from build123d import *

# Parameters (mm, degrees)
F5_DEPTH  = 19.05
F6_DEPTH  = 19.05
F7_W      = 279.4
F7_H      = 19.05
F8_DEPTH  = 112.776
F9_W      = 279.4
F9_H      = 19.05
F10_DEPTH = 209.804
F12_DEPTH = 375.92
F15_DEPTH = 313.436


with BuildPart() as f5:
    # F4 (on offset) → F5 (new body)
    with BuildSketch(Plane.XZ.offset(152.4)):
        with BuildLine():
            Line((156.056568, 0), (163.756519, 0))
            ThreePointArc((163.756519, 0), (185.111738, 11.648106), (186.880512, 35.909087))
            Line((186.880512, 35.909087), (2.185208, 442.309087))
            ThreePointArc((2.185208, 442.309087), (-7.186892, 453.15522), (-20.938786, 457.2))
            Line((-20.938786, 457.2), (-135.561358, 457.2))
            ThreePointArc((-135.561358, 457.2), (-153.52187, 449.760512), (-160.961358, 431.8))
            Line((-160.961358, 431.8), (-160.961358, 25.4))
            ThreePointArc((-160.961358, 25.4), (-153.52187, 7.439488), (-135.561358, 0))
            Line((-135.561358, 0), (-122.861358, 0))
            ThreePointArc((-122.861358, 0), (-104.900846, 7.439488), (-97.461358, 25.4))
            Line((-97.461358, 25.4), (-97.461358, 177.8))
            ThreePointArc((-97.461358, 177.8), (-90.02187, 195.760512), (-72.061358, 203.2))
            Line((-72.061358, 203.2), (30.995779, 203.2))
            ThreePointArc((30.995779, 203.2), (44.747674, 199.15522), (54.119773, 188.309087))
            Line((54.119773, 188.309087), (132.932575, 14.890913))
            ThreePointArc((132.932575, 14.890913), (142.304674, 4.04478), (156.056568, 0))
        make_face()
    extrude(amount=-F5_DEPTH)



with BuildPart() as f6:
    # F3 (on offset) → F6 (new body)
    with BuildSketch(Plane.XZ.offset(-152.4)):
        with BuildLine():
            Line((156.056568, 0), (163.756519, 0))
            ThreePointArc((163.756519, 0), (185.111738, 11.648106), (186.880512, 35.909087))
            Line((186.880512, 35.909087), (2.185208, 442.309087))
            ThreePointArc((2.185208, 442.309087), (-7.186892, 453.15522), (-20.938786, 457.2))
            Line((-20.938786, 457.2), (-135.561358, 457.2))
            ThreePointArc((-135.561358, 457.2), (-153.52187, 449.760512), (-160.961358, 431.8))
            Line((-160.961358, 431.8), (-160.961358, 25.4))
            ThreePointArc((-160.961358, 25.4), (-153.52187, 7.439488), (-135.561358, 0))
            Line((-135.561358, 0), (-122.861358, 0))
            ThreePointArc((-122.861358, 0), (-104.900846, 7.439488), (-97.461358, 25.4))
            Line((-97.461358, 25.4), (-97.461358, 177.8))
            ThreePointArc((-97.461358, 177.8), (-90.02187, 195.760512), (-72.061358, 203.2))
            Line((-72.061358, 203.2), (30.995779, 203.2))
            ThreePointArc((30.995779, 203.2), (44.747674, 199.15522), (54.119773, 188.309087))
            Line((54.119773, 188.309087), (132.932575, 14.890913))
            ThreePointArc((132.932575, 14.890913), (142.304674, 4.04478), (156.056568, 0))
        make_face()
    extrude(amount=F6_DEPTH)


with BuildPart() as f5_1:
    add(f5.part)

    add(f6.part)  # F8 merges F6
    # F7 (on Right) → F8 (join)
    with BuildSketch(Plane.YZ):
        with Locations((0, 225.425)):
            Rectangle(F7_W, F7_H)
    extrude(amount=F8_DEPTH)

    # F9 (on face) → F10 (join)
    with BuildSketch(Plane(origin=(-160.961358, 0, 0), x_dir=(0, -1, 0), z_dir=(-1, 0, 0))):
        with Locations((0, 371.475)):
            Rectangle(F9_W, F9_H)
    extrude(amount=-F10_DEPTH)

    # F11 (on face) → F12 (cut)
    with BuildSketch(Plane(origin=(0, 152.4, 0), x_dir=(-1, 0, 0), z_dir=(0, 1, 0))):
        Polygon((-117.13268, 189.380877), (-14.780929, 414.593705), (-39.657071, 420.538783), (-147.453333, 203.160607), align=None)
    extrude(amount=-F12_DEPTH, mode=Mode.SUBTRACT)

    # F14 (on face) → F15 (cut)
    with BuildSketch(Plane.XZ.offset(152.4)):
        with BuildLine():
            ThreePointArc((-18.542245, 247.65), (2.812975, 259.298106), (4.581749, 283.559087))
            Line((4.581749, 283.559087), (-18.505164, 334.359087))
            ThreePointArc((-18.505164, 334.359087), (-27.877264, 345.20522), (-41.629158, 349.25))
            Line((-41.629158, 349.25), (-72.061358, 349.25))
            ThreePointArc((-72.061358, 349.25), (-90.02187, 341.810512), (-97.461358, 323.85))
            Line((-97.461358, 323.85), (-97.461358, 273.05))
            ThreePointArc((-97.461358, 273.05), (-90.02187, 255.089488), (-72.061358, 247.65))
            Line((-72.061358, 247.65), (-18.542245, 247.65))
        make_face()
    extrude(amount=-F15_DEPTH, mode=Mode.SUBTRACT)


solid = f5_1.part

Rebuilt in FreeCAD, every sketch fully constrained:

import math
import FreeCAD as App
import Part
import Sketcher
from FreeCAD import Vector
Q = App.Units.Quantity


def add_polygon(sketch, points):
    """Adds a closed chain of lines whose ends are joined by coincident constraints."""
    first, n = sketch.GeometryCount, len(points)
    for a, b in zip(points, points[1:] + points[:1]):
        sketch.addGeometry(Part.LineSegment(App.Vector(*a, 0), App.Vector(*b, 0)), False)
    for i in range(n):
        sketch.addConstraint(Sketcher.Constraint("Coincident", first + i, 2, first + (i + 1) % n, 1))

doc = App.newDocument("Part")
body = doc.addObject("PartDesign::Body", "Body")

# Sketch on XZ plane
sketch1 = body.newObject("Sketcher::SketchObject", "Sketch")
sketch1.AttachmentSupport = (doc.getObject("XZ_Plane"), [""])
sketch1.MapMode = "FlatFace"
sketch1.AttachmentOffset = App.Placement(Vector(0, 0, 6 * 25.4), App.Rotation())
sketch1.addGeometry([
    Part.LineSegment(Vector(156, 0, 0), Vector(164, 0, 0)),  # 0
    Part.ArcOfCircle(Part.Circle(Vector(164, 25, 0), Vector(0, 0, 1), 25), math.radians(-90), math.radians(24)),  # 1
    Part.LineSegment(Vector(187, 36, 0), Vector(2, 442, 0)),  # 2
    Part.ArcOfCircle(Part.Circle(Vector(-21, 432, 0), Vector(0, 0, 1), 25), math.radians(24), math.radians(90)),  # 3
    Part.LineSegment(Vector(-21, 457, 0), Vector(-136, 457, 0)),  # 4
    Part.ArcOfCircle(Part.Circle(Vector(-136, 432, 0), Vector(0, 0, 1), 25), math.radians(90), math.radians(180)),  # 5
    Part.LineSegment(Vector(-161, 432, 0), Vector(-161, 25, 0)),  # 6
    Part.ArcOfCircle(Part.Circle(Vector(-136, 25, 0), Vector(0, 0, 1), 25), math.radians(-180), math.radians(-90)),  # 7
    Part.LineSegment(Vector(-136, 0, 0), Vector(-123, 0, 0)),  # 8
    Part.ArcOfCircle(Part.Circle(Vector(-123, 25, 0), Vector(0, 0, 1), 25), math.radians(-90), math.radians(0)),  # 9
    Part.LineSegment(Vector(-97, 25, 0), Vector(-97, 178, 0)),  # 10
    Part.ArcOfCircle(Part.Circle(Vector(-72, 178, 0), Vector(0, 0, 1), 25), math.radians(90), math.radians(180)),  # 11
    Part.LineSegment(Vector(-72, 203, 0), Vector(31, 203, 0)),  # 12
    Part.ArcOfCircle(Part.Circle(Vector(31, 178, 0), Vector(0, 0, 1), 25), math.radians(24), math.radians(90)),  # 13
    Part.LineSegment(Vector(54, 188, 0), Vector(133, 15, 0)),  # 14
    Part.ArcOfCircle(Part.Circle(Vector(156, 25, 0), Vector(0, 0, 1), 25), math.radians(-156), math.radians(-90)),  # 15
], False)
sketch1.addConstraint([
    Sketcher.Constraint("Tangent", 0, 2, 1, 1),
    Sketcher.Constraint("Tangent", 1, 2, 2, 1),
    Sketcher.Constraint("Tangent", 2, 2, 3, 1),
    Sketcher.Constraint("Tangent", 3, 2, 4, 1),
    Sketcher.Constraint("Tangent", 4, 2, 5, 1),
    Sketcher.Constraint("Tangent", 5, 2, 6, 1),
    Sketcher.Constraint("Tangent", 6, 2, 7, 1),
    Sketcher.Constraint("Tangent", 7, 2, 8, 1),
    Sketcher.Constraint("Tangent", 8, 2, 9, 1),
    Sketcher.Constraint("Tangent", 9, 2, 10, 1),
    Sketcher.Constraint("Tangent", 10, 2, 11, 2),
    Sketcher.Constraint("Tangent", 11, 1, 12, 1),
    Sketcher.Constraint("Tangent", 12, 2, 13, 2),
    Sketcher.Constraint("Tangent", 13, 1, 14, 1),
    Sketcher.Constraint("Tangent", 14, 2, 15, 1),
    Sketcher.Constraint("Tangent", 15, 2, 0, 1),
    Sketcher.Constraint("Horizontal", 0),
    Sketcher.Constraint("Horizontal", 4),
    Sketcher.Constraint("Vertical", 6),
    Sketcher.Constraint("Horizontal", 8),
    Sketcher.Constraint("Vertical", 10),
    Sketcher.Constraint("Horizontal", 12),
    Sketcher.Constraint("Equal", 1, 3),
    Sketcher.Constraint("Equal", 3, 5),
    Sketcher.Constraint("Equal", 5, 7),
    Sketcher.Constraint("Equal", 7, 9),
    Sketcher.Constraint("Equal", 9, 11),
    Sketcher.Constraint("Equal", 13, 15),
    Sketcher.Constraint("PointOnObject", 0, 2, -1),
    Sketcher.Constraint("PointOnObject", 7, 2, -1),
    Sketcher.Constraint("Parallel", 2, 14),
    Sketcher.Constraint("Radius", 1, Q("1 in")),
    Sketcher.Constraint("Radius", 13, Q("0.9999999 in")),
    Sketcher.Constraint("DistanceY", 6, 2, 6, 1, Q("16 in")),
    Sketcher.Constraint("DistanceY", 10, 1, 10, 2, Q("6 in")),
    Sketcher.Constraint("DistanceX", 8, 1, 8, 2, Q("0.5 in")),
    Sketcher.Constraint("DistanceX", 0, 1, 0, 2, Q("7.699951 mm")),
    Sketcher.Constraint("DistanceX", 4, 2, 4, 1, Q("114.622572 mm")),
    Sketcher.Constraint("DistanceX", 12, 1, 12, 2, Q("103.057137 mm")),
    Sketcher.Constraint("DistanceX", -1, 1, 1, 3, Q("163.756518 mm")),
])
pad1 = body.newObject("PartDesign::Pad", "Pad")
pad1.Profile = sketch1
pad1.Length = Q("0.75 in")
pad1.Reversed = True
body2 = doc.addObject("PartDesign::Body", "Body001")

# Sketch on XZ plane
sketch2 = body2.newObject("Sketcher::SketchObject", "Sketch001")
sketch2.AttachmentSupport = (doc.getObject("XZ_Plane001"), [""])
sketch2.MapMode = "FlatFace"
sketch2.AttachmentOffset = App.Placement(Vector(0, 0, -6 * 25.4), App.Rotation())
sketch2.addGeometry([
    Part.LineSegment(Vector(156, 0, 0), Vector(164, 0, 0)),  # 0
    Part.ArcOfCircle(Part.Circle(Vector(164, 25, 0), Vector(0, 0, 1), 25), math.radians(-90), math.radians(24)),  # 1
    Part.LineSegment(Vector(187, 36, 0), Vector(2, 442, 0)),  # 2
    Part.ArcOfCircle(Part.Circle(Vector(-21, 432, 0), Vector(0, 0, 1), 25), math.radians(24), math.radians(90)),  # 3
    Part.LineSegment(Vector(-21, 457, 0), Vector(-136, 457, 0)),  # 4
    Part.ArcOfCircle(Part.Circle(Vector(-136, 432, 0), Vector(0, 0, 1), 25), math.radians(90), math.radians(180)),  # 5
    Part.LineSegment(Vector(-161, 432, 0), Vector(-161, 25, 0)),  # 6
    Part.ArcOfCircle(Part.Circle(Vector(-136, 25, 0), Vector(0, 0, 1), 25), math.radians(-180), math.radians(-90)),  # 7
    Part.LineSegment(Vector(-136, 0, 0), Vector(-123, 0, 0)),  # 8
    Part.ArcOfCircle(Part.Circle(Vector(-123, 25, 0), Vector(0, 0, 1), 25), math.radians(-90), math.radians(0)),  # 9
    Part.LineSegment(Vector(-97, 25, 0), Vector(-97, 178, 0)),  # 10
    Part.ArcOfCircle(Part.Circle(Vector(-72, 178, 0), Vector(0, 0, 1), 25), math.radians(90), math.radians(180)),  # 11
    Part.LineSegment(Vector(-72, 203, 0), Vector(31, 203, 0)),  # 12
    Part.ArcOfCircle(Part.Circle(Vector(31, 178, 0), Vector(0, 0, 1), 25), math.radians(24), math.radians(90)),  # 13
    Part.LineSegment(Vector(54, 188, 0), Vector(133, 15, 0)),  # 14
    Part.ArcOfCircle(Part.Circle(Vector(156, 25, 0), Vector(0, 0, 1), 25), math.radians(-156), math.radians(-90)),  # 15
], False)
sketch2.addConstraint([
    Sketcher.Constraint("Tangent", 0, 2, 1, 1),
    Sketcher.Constraint("Tangent", 1, 2, 2, 1),
    Sketcher.Constraint("Tangent", 2, 2, 3, 1),
    Sketcher.Constraint("Tangent", 3, 2, 4, 1),
    Sketcher.Constraint("Tangent", 4, 2, 5, 1),
    Sketcher.Constraint("Tangent", 5, 2, 6, 1),
    Sketcher.Constraint("Tangent", 6, 2, 7, 1),
    Sketcher.Constraint("Tangent", 7, 2, 8, 1),
    Sketcher.Constraint("Tangent", 8, 2, 9, 1),
    Sketcher.Constraint("Tangent", 9, 2, 10, 1),
    Sketcher.Constraint("Tangent", 10, 2, 11, 2),
    Sketcher.Constraint("Tangent", 11, 1, 12, 1),
    Sketcher.Constraint("Tangent", 12, 2, 13, 2),
    Sketcher.Constraint("Tangent", 13, 1, 14, 1),
    Sketcher.Constraint("Tangent", 14, 2, 15, 1),
    Sketcher.Constraint("Tangent", 15, 2, 0, 1),
    Sketcher.Constraint("Horizontal", 0),
    Sketcher.Constraint("Horizontal", 4),
    Sketcher.Constraint("Vertical", 6),
    Sketcher.Constraint("Horizontal", 8),
    Sketcher.Constraint("Vertical", 10),
    Sketcher.Constraint("Horizontal", 12),
    Sketcher.Constraint("Equal", 1, 3),
    Sketcher.Constraint("Equal", 3, 5),
    Sketcher.Constraint("Equal", 5, 7),
    Sketcher.Constraint("Equal", 7, 9),
    Sketcher.Constraint("Equal", 9, 11),
    Sketcher.Constraint("Equal", 13, 15),
    Sketcher.Constraint("PointOnObject", 0, 2, -1),
    Sketcher.Constraint("PointOnObject", 7, 2, -1),
    Sketcher.Constraint("Parallel", 2, 14),
    Sketcher.Constraint("Radius", 1, Q("1 in")),
    Sketcher.Constraint("Radius", 13, Q("0.9999999 in")),
    Sketcher.Constraint("DistanceY", 6, 2, 6, 1, Q("16 in")),
    Sketcher.Constraint("DistanceY", 10, 1, 10, 2, Q("6 in")),
    Sketcher.Constraint("DistanceX", 8, 1, 8, 2, Q("0.5 in")),
    Sketcher.Constraint("DistanceX", 0, 1, 0, 2, Q("7.699951 mm")),
    Sketcher.Constraint("DistanceX", 4, 2, 4, 1, Q("114.622572 mm")),
    Sketcher.Constraint("DistanceX", 12, 1, 12, 2, Q("103.057137 mm")),
    Sketcher.Constraint("DistanceX", -1, 1, 1, 3, Q("163.756518 mm")),
])
pad2 = body2.newObject("PartDesign::Pad", "Pad001")
pad2.Profile = sketch2
pad2.Length = Q("0.75 in")
body.AllowCompound = True
doc.recompute()

boolean = body.newObject("PartDesign::Boolean", "Boolean")
boolean.Type = "Fuse"
boolean.addObjects([body2])

# Sketch on YZ plane
sketch3 = body.newObject("Sketcher::SketchObject", "Sketch002")
sketch3.AttachmentSupport = (doc.getObject("YZ_Plane"), [""])
sketch3.MapMode = "FlatFace"
add_polygon(sketch3, [(-140, 235), (-140, 216), (140, 216), (140, 235)])  # lines 0-3
sketch3.addConstraint([
    Sketcher.Constraint("Vertical", 0),
    Sketcher.Constraint("Horizontal", 1),
    Sketcher.Constraint("Vertical", 2),
    Sketcher.Constraint("Horizontal", 3),
    Sketcher.Constraint("DistanceX", 1, 1, 1, 2, Q("11 in")),
    Sketcher.Constraint("DistanceY", 0, 2, 0, 1, Q("0.75 in")),
    Sketcher.Constraint("DistanceX", 0, 2, -1, 1, Q("5.5 in")),
    Sketcher.Constraint("DistanceY", -1, 1, 0, 2, Q("8.5 in")),
])
pad3 = body.newObject("PartDesign::Pad", "Pad002")
pad3.Profile = sketch3
pad3.Length = Q("4.44 in")

# Sketch on YZ plane
sketch4 = body.newObject("Sketcher::SketchObject", "Sketch003")
sketch4.AttachmentSupport = (doc.getObject("YZ_Plane"), [""])
sketch4.MapMode = "FlatFace"
sketch4.AttachmentOffset = App.Placement(Vector(0, 0, -160.961358), App.Rotation())
add_polygon(sketch4, [(140, 381), (140, 362), (-140, 362), (-140, 381)])  # lines 0-3
sketch4.addConstraint([
    Sketcher.Constraint("Vertical", 0),
    Sketcher.Constraint("Horizontal", 1),
    Sketcher.Constraint("Vertical", 2),
    Sketcher.Constraint("Horizontal", 3),
    Sketcher.Constraint("DistanceX", 1, 2, 1, 1, Q("11 in")),
    Sketcher.Constraint("DistanceY", -1, 1, 2, 2, Q("15 in")),
    Sketcher.Constraint("DistanceY", 0, 2, 0, 1, Q("0.75 in")),
    Sketcher.Constraint("DistanceX", -1, 1, 0, 2, Q("5.5 in")),
])
pad4 = body.newObject("PartDesign::Pad", "Pad003")
pad4.Profile = sketch4
pad4.Length = Q("8.26 in")

# Sketch on XZ plane
sketch5 = body.newObject("Sketcher::SketchObject", "Sketch004")
sketch5.AttachmentSupport = (doc.getObject("XZ_Plane"), [""])
sketch5.MapMode = "FlatFace"
sketch5.AttachmentOffset = App.Placement(Vector(0, 0, -6 * 25.4), App.Rotation())
add_polygon(sketch5, [(117, 189), (15, 415), (40, 421), (147, 203)])  # lines 0-3
sketch5.addConstraint([
    Sketcher.Constraint("Perpendicular", 0, 3),
    Sketcher.Constraint("Distance", 3, Q("33.304999 mm")),
    Sketcher.Constraint("DistanceY", 2, 2, 0, 2, Q("211.433098 mm")),
    Sketcher.Constraint("Distance", 2, Q("242.638219 mm")),
    Sketcher.Constraint("DistanceX", -1, 1, 0, 2, Q("14.780929 mm")),
    Sketcher.Constraint("DistanceX", -1, 1, 1, 2, Q("39.657071 mm")),
    Sketcher.Constraint("DistanceX", -1, 1, 3, 2, Q("117.13268 mm")),
    Sketcher.Constraint("DistanceY", -1, 1, 0, 2, Q("414.593705 mm")),
])
pocket1 = body.newObject("PartDesign::Pocket", "Pocket")
pocket1.Profile = sketch5
pocket1.Length = Q("14.8 in")
pocket1.Reversed = True

# Sketch on XZ plane
sketch6 = body.newObject("Sketcher::SketchObject", "Sketch005")
sketch6.AttachmentSupport = (doc.getObject("XZ_Plane"), [""])
sketch6.MapMode = "FlatFace"
sketch6.AttachmentOffset = App.Placement(Vector(0, 0, 6 * 25.4), App.Rotation())
sketch6.addGeometry([
    Part.ArcOfCircle(Part.Circle(Vector(-19, 273, 0), Vector(0, 0, 1), 25), math.radians(-90), math.radians(24)),  # 0
    Part.LineSegment(Vector(5, 284, 0), Vector(-19, 334, 0)),  # 1
    Part.ArcOfCircle(Part.Circle(Vector(-42, 324, 0), Vector(0, 0, 1), 25), math.radians(24), math.radians(90)),  # 2
    Part.LineSegment(Vector(-42, 349, 0), Vector(-72, 349, 0)),  # 3
    Part.ArcOfCircle(Part.Circle(Vector(-72, 324, 0), Vector(0, 0, 1), 25), math.radians(90), math.radians(180)),  # 4
    Part.LineSegment(Vector(-97, 324, 0), Vector(-97, 273, 0)),  # 5
    Part.ArcOfCircle(Part.Circle(Vector(-72, 273, 0), Vector(0, 0, 1), 25), math.radians(-180), math.radians(-90)),  # 6
    Part.LineSegment(Vector(-72, 248, 0), Vector(-19, 248, 0)),  # 7
], False)
sketch6.addConstraint([
    Sketcher.Constraint("Tangent", 0, 2, 1, 1),
    Sketcher.Constraint("Tangent", 1, 2, 2, 1),
    Sketcher.Constraint("Tangent", 2, 2, 3, 1),
    Sketcher.Constraint("Tangent", 3, 2, 4, 1),
    Sketcher.Constraint("Tangent", 4, 2, 5, 1),
    Sketcher.Constraint("Tangent", 5, 2, 6, 1),
    Sketcher.Constraint("Tangent", 6, 2, 7, 1),
    Sketcher.Constraint("Tangent", 7, 2, 0, 1),
    Sketcher.Constraint("Horizontal", 3),
    Sketcher.Constraint("Vertical", 5),
    Sketcher.Constraint("Horizontal", 7),
    Sketcher.Constraint("Equal", 0, 2),
    Sketcher.Constraint("Equal", 2, 4),
    Sketcher.Constraint("Equal", 4, 6),
    Sketcher.Constraint("Radius", 0, Q("1 in")),
    Sketcher.Constraint("DistanceY", 5, 2, 5, 1, Q("2 in")),
    Sketcher.Constraint("DistanceY", -1, 1, 0, 3, Q("10.75 in")),
    Sketcher.Constraint("DistanceX", 3, 2, 3, 1, Q("30.4322 mm")),
    Sketcher.Constraint("Distance", 1, Q("55.80005 mm")),
    Sketcher.Constraint("DistanceX", -1, 1, 0, 2, Q("4.581749 mm")),
])
pocket2 = body.newObject("PartDesign::Pocket", "Pocket001")
pocket2.Profile = sketch6
pocket2.Length = Q("12.34 in")

doc.recompute()
